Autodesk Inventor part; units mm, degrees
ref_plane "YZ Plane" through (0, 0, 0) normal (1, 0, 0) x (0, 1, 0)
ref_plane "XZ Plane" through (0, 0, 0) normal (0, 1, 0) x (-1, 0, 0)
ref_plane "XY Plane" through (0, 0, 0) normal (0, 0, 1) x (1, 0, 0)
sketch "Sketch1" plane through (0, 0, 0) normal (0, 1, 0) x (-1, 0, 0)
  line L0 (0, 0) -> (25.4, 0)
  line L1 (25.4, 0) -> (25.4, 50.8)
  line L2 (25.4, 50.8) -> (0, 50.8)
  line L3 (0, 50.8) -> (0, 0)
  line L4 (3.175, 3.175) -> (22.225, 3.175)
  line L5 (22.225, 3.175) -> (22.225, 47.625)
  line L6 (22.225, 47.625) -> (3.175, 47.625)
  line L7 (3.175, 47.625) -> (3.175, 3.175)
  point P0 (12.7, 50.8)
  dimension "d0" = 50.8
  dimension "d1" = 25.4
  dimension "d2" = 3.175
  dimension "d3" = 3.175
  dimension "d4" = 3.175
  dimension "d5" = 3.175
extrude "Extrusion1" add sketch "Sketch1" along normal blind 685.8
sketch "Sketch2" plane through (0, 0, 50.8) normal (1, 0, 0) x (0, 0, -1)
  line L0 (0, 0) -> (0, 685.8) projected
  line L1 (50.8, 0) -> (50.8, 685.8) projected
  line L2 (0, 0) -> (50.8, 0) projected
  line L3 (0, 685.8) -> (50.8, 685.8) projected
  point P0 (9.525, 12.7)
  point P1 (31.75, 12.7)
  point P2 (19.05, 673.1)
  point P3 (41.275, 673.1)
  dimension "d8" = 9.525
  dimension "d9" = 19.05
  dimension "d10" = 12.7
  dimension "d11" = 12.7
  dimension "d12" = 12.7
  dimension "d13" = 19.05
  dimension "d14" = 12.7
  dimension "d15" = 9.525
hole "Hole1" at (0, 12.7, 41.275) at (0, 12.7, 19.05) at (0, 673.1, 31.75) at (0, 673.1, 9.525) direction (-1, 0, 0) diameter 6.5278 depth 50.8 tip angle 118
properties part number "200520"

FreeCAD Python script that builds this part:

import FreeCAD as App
import Part
import Sketcher
from FreeCAD import Vector
Q = App.Units.Quantity


def add_polygon(sketch, points):
    """Adds a closed chain of lines whose ends are joined by coincident constraints."""
    first, n = sketch.GeometryCount, len(points)
    for a, b in zip(points, points[1:] + points[:1]):
        sketch.addGeometry(Part.LineSegment(App.Vector(*a, 0), App.Vector(*b, 0)), False)
    for i in range(n):
        sketch.addConstraint(Sketcher.Constraint("Coincident", first + i, 2, first + (i + 1) % n, 1))

doc = App.newDocument("Part")
body = doc.addObject("PartDesign::Body", "Body")

sketch1 = body.newObject("Sketcher::SketchObject", "Sketch")
sketch1.AttachmentSupport = (doc.getObject("XZ_Plane"), [""])
sketch1.MapMode = "FlatFace"
add_polygon(sketch1, [(0, 50.8), (0, 0), (-25.4, 0), (-25.4, 50.8)])
add_polygon(sketch1, [(-22.225, 3.175), (-3.175, 3.175), (-3.175, 47.625), (-22.225, 47.625)])
sketch1.addConstraint([
    Sketcher.Constraint("Vertical", 0),
    Sketcher.Constraint("Horizontal", 1),
    Sketcher.Constraint("Vertical", 2),
    Sketcher.Constraint("Horizontal", 3),
    Sketcher.Constraint("Horizontal", 4),
    Sketcher.Constraint("Vertical", 5),
    Sketcher.Constraint("Horizontal", 6),
    Sketcher.Constraint("Vertical", 7),
    Sketcher.Constraint("Coincident", 0, 2, -1, 1),
    Sketcher.Constraint("DistanceX", 1, 2, 1, 1, Q("1 in")),
    Sketcher.Constraint("DistanceY", 0, 2, 0, 1, Q("2 in")),
    Sketcher.Constraint("DistanceX", 4, 2, -1, 1, Q("0.125 in")),
    Sketcher.Constraint("DistanceY", -1, 1, 4, 2, Q("0.125 in")),
    Sketcher.Constraint("DistanceY", 5, 2, 3, 2, Q("0.125 in")),
    Sketcher.Constraint("DistanceX", 2, 2, 6, 2, Q("0.125 in")),
])
pad1 = body.newObject("PartDesign::Pad", "Pad")
pad1.Profile = sketch1
pad1.Length = Q("27 in")
pad1.Reversed = True

sketch2 = body.newObject("Sketcher::SketchObject", "Sketch001")
sketch2.AttachmentSupport = (doc.getObject("YZ_Plane"), [""])
sketch2.MapMode = "FlatFace"
sketch2.addGeometry([
    Part.Circle(Vector(12.7, 41.275, 0), Vector(0, 0, 1), 3.2639),
    Part.Circle(Vector(12.7, 19.05, 0), Vector(0, 0, 1), 3.2639),
    Part.Circle(Vector(673.1, 31.75, 0), Vector(0, 0, 1), 3.2639),
    Part.Circle(Vector(673.1, 9.525, 0), Vector(0, 0, 1), 3.2639),
], False)
sketch2.addConstraint([
    Sketcher.Constraint("Equal", 0, 1),
    Sketcher.Constraint("Equal", 1, 2),
    Sketcher.Constraint("Equal", 2, 3),
    Sketcher.Constraint("Vertical", 0, 3, 1, 3),
    Sketcher.Constraint("Vertical", 2, 3, 3, 3),
    Sketcher.Constraint("Diameter", 0, Q("0.257 in")),
    Sketcher.Constraint("DistanceX", 0, 3, 2, 3, Q("26 in")),
    Sketcher.Constraint("DistanceX", -1, 1, 0, 3, Q("0.5 in")),
    Sketcher.Constraint("DistanceY", 1, 3, 2, 3, Q("0.5 in")),
    Sketcher.Constraint("DistanceY", -1, 1, 1, 3, Q("0.75 in")),
    Sketcher.Constraint("DistanceY", 3, 3, 0, 3, Q("1.25 in")),
    Sketcher.Constraint("DistanceY", -1, 1, 0, 3, Q("1.625 in")),
])
doc.recompute()
hole = body.newObject("PartDesign::Hole", "Hole")
hole.Profile = sketch2
hole.ThreadType = "None"
hole.Diameter = Q("0.257 in")
hole.DepthType = "Dimension"
hole.Depth = Q("2 in")
hole.DrillPoint = "Angled"
hole.DrillPointAngle = 118

doc.recompute()
